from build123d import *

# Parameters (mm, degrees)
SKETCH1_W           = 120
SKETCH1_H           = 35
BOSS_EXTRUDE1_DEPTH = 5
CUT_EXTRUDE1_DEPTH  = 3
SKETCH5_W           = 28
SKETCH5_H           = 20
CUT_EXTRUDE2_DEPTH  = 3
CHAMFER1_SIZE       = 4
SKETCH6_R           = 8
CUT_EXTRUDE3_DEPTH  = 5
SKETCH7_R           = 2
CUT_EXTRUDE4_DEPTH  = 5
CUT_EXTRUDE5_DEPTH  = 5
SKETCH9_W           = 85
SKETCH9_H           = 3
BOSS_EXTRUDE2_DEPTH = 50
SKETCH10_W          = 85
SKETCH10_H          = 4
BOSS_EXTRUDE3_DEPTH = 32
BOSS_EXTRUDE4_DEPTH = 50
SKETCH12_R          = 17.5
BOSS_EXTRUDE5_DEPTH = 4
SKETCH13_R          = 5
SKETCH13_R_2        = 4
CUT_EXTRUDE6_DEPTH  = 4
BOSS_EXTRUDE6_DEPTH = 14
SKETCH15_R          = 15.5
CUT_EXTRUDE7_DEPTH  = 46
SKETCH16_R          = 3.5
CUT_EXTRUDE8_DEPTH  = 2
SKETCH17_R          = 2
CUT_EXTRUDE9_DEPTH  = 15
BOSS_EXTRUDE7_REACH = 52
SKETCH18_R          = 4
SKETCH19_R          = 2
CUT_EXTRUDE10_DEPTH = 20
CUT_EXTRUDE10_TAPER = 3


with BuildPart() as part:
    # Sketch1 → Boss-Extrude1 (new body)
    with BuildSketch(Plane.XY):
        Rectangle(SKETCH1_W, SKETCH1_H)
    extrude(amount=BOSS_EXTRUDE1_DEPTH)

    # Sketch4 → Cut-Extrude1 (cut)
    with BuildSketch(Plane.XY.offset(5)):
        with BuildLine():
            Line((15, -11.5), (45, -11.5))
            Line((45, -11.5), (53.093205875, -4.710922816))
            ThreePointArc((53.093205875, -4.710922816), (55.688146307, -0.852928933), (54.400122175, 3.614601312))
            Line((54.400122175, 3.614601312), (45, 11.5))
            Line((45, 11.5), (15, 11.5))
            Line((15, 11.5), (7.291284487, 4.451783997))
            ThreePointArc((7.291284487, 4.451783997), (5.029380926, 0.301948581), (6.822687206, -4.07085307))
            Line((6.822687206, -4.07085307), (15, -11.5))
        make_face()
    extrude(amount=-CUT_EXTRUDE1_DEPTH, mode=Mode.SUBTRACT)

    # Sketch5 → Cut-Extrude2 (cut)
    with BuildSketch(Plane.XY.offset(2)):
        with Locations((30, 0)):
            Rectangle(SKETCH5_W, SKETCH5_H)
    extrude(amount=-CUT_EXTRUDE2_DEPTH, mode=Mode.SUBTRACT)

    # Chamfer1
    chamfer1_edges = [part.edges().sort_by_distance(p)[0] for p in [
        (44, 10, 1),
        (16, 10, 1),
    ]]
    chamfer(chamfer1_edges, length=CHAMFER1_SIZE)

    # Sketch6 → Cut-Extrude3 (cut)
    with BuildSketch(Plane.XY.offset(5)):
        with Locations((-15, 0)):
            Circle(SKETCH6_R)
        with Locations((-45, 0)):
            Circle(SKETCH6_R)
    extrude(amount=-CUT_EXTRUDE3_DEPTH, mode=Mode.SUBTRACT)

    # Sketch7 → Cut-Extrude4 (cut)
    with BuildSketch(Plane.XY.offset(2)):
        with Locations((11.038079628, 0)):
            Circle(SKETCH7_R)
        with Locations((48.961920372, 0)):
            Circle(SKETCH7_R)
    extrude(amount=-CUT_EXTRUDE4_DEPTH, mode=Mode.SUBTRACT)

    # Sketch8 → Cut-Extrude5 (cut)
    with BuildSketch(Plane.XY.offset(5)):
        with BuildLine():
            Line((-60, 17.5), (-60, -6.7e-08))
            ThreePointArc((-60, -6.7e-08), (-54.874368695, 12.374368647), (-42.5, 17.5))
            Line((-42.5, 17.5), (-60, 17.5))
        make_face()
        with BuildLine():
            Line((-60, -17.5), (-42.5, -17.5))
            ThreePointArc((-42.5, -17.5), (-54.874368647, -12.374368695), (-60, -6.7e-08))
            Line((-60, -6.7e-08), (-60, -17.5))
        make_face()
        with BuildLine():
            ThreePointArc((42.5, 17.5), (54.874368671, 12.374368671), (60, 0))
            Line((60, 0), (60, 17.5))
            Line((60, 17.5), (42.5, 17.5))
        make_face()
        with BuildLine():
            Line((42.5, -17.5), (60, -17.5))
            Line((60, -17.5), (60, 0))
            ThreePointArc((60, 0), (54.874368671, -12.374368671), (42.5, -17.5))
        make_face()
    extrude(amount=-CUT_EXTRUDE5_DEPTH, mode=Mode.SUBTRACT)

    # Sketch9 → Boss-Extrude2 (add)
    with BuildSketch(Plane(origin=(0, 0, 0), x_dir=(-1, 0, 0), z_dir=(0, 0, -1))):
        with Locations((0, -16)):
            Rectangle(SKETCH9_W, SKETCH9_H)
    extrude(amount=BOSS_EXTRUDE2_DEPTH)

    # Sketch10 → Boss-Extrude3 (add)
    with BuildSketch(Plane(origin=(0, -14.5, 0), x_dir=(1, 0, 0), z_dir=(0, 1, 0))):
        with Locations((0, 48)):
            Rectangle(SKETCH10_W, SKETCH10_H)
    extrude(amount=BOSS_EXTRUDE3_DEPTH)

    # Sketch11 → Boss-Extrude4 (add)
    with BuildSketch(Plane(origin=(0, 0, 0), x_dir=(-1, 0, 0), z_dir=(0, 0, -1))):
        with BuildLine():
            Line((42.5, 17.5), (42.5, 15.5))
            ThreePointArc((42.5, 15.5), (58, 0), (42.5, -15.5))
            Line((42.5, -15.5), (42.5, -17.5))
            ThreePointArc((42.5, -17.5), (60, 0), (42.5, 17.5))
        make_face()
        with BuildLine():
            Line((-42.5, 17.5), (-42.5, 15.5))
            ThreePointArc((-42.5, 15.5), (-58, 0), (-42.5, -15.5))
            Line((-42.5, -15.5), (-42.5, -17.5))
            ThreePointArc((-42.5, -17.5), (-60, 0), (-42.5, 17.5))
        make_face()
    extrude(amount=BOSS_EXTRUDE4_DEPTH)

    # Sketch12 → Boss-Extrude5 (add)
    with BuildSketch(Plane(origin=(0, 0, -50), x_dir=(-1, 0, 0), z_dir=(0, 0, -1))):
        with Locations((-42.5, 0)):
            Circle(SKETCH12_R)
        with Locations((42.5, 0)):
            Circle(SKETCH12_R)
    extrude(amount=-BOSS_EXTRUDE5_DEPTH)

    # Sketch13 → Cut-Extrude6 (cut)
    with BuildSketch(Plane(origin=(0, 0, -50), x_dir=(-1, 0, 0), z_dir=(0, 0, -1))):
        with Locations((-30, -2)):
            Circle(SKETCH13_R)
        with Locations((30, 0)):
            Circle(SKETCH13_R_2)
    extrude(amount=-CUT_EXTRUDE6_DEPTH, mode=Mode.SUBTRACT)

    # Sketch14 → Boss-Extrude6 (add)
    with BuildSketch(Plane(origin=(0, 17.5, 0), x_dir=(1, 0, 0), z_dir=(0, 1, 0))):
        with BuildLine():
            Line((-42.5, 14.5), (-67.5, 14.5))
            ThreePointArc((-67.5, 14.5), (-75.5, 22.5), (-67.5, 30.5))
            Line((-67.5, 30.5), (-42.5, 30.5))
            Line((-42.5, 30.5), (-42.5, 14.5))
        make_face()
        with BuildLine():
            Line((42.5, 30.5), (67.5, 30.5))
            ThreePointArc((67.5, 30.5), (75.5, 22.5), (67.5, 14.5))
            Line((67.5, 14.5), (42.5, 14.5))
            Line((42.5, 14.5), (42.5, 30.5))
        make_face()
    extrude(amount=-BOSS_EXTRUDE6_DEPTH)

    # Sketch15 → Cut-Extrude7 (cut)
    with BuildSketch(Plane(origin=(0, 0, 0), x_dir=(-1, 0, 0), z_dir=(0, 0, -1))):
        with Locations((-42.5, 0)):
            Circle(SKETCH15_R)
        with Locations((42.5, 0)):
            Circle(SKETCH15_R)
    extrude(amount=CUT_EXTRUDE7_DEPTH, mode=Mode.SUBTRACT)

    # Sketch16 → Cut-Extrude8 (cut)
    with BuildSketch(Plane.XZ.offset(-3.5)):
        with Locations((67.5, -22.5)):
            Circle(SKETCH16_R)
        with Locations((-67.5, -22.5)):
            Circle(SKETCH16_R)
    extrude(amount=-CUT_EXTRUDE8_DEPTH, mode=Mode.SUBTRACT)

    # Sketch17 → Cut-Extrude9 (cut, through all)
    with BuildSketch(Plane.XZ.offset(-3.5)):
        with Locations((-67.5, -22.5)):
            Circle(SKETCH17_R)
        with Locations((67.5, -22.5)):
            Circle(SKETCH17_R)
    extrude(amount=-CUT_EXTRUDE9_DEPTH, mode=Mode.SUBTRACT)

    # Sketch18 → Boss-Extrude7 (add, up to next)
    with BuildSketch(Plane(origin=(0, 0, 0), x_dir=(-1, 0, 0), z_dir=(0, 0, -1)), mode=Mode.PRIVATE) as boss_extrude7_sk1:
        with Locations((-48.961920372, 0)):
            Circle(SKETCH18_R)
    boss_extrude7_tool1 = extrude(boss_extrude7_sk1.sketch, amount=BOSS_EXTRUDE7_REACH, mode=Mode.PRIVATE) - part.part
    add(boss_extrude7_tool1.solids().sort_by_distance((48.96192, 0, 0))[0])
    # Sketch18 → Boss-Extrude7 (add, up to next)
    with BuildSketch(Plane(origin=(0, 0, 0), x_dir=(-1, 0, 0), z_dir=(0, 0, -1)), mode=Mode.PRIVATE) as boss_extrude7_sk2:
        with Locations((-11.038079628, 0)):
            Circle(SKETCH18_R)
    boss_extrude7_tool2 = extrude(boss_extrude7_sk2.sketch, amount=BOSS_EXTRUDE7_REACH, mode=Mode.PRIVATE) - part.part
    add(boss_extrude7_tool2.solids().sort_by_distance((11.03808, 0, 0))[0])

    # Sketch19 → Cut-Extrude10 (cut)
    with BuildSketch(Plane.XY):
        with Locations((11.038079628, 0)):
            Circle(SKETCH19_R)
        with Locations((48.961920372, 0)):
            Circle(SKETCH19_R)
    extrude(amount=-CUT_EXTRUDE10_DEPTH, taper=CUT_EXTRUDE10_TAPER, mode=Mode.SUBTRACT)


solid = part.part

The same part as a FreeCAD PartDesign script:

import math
import FreeCAD as App
import Part
import Sketcher

V = App.Vector
Q = App.Units.Quantity


def edges_at(feature, points):
    """Names of the edges that pass closest to the given points."""
    edges = feature.Shape.Edges
    near = lambda p: min(range(len(edges)), key=lambda i: edges[i].distToShape(Part.Vertex(*p))[0])
    return sorted({f"Edge{near(p) + 1}" for p in points})

doc = App.newDocument("Part")
body = doc.addObject("PartDesign::Body", "Body")

sketch1 = doc.addObject("Sketcher::SketchObject", "Sketch")
body.addObject(sketch1)
sketch1.AttachmentSupport = (doc.XY_Plane, [""])
sketch1.MapMode = "FlatFace"
sketch1.addGeometry(Part.LineSegment(V(-60, 18, 0), V(-60, -18, 0)), False)
sketch1.addGeometry(Part.LineSegment(V(-60, -18, 0), V(60, -18, 0)), False)
sketch1.addGeometry(Part.LineSegment(V(60, -18, 0), V(60, 18, 0)), False)
sketch1.addGeometry(Part.LineSegment(V(60, 18, 0), V(-60, 18, 0)), False)
sketch1.addConstraint(Sketcher.Constraint("Coincident", 0, 2, 1, 1))
sketch1.addConstraint(Sketcher.Constraint("Coincident", 1, 2, 2, 1))
sketch1.addConstraint(Sketcher.Constraint("Coincident", 2, 2, 3, 1))
sketch1.addConstraint(Sketcher.Constraint("Coincident", 3, 2, 0, 1))
sketch1.addConstraint(Sketcher.Constraint("Vertical", 0))
sketch1.addConstraint(Sketcher.Constraint("Horizontal", 1))
sketch1.addConstraint(Sketcher.Constraint("Vertical", 2))
sketch1.addConstraint(Sketcher.Constraint("Horizontal", 3))
sketch1.addConstraint(Sketcher.Constraint("Symmetric", 0, 2, 2, 2, -1, 1))
sketch1.addConstraint(Sketcher.Constraint("DistanceX", 1, 1, 1, 2, Q("120 mm")))
sketch1.addConstraint(Sketcher.Constraint("DistanceY", 0, 2, 0, 1, Q("35 mm")))
pad1 = doc.addObject("PartDesign::Pad", "Pad")
body.addObject(pad1)
pad1.Profile = sketch1
pad1.Length = 5

sketch2 = doc.addObject("Sketcher::SketchObject", "Sketch001")
body.addObject(sketch2)
sketch2.AttachmentSupport = (doc.XY_Plane, [""])
sketch2.MapMode = "FlatFace"
sketch2.AttachmentOffset = App.Placement(V(0, 0, 5), App.Rotation())
sketch2.addGeometry(Part.LineSegment(V(15, -12, 0), V(45, -12, 0)), False)
sketch2.addGeometry(Part.LineSegment(V(45, -12, 0), V(53, -5, 0)), False)
sketch2.addGeometry(Part.ArcOfCircle(Part.Circle(V(50, 0, 0), V(0, 0, 1), 6), math.radians(-59), math.radians(41)), False)
sketch2.addGeometry(Part.LineSegment(V(54, 4, 0), V(45, 12, 0)), False)
sketch2.addGeometry(Part.LineSegment(V(45, 12, 0), V(15, 12, 0)), False)
sketch2.addGeometry(Part.LineSegment(V(15, 12, 0), V(7, 4, 0)), False)
sketch2.addGeometry(Part.ArcOfCircle(Part.Circle(V(11, 0, 0), V(0, 0, 1), 6), math.radians(126), math.radians(228)), False)
sketch2.addGeometry(Part.LineSegment(V(7, -4, 0), V(15, -12, 0)), False)
sketch2.addConstraint(Sketcher.Constraint("Coincident", 0, 2, 1, 1))
sketch2.addConstraint(Sketcher.Constraint("Coincident", 1, 2, 2, 1))
sketch2.addConstraint(Sketcher.Constraint("Coincident", 2, 2, 3, 1))
sketch2.addConstraint(Sketcher.Constraint("Coincident", 3, 2, 4, 1))
sketch2.addConstraint(Sketcher.Constraint("Coincident", 4, 2, 5, 1))
sketch2.addConstraint(Sketcher.Constraint("Coincident", 5, 2, 6, 1))
sketch2.addConstraint(Sketcher.Constraint("Tangent", 6, 2, 7, 1))
sketch2.addConstraint(Sketcher.Constraint("Coincident", 7, 2, 0, 1))
sketch2.addConstraint(Sketcher.Constraint("Horizontal", 0))
sketch2.addConstraint(Sketcher.Constraint("Horizontal", 4))
sketch2.addConstraint(Sketcher.Constraint("Equal", 2, 6))
sketch2.addConstraint(Sketcher.Constraint("Symmetric", 0, 2, 3, 2, -1))
sketch2.addConstraint(Sketcher.Constraint("PointOnObject", 2, 3, -1))
sketch2.addConstraint(Sketcher.Constraint("PointOnObject", 6, 3, -1))
sketch2.addConstraint(Sketcher.Constraint("Vertical", 4, 2, 7, 2))
sketch2.addConstraint(Sketcher.Constraint("Radius", 2, Q("5.5 mm")))
sketch2.addConstraint(Sketcher.Constraint("DistanceX", 0, 1, 0, 2, Q("30 mm")))
sketch2.addConstraint(Sketcher.Constraint("DistanceX", -1, 1, 0, 2, Q("45 mm")))
sketch2.addConstraint(Sketcher.Constraint("DistanceY", 0, 2, 3, 2, Q("23 mm")))
sketch2.addConstraint(Sketcher.Constraint("DistanceY", -1, 1, 2, 2, Q("3.614601 mm")))
sketch2.addConstraint(Sketcher.Constraint("DistanceX", 5, 2, 6, 3, Q("3.229802 mm")))
sketch2.addConstraint(Sketcher.Constraint("DistanceX", 5, 2, 2, 3, Q("42.9634 mm")))
sketch2.addConstraint(Sketcher.Constraint("DistanceX", 6, 2, 6, 3, Q("3.698399 mm")))
sketch2.addConstraint(Sketcher.Constraint("Distance", 1, Q("10.56369 mm")))
pocket1 = doc.addObject("PartDesign::Pocket", "Pocket")
body.addObject(pocket1)
pocket1.Profile = sketch2
pocket1.Length = 3

sketch3 = doc.addObject("Sketcher::SketchObject", "Sketch002")
body.addObject(sketch3)
sketch3.AttachmentSupport = (doc.XY_Plane, [""])
sketch3.MapMode = "FlatFace"
sketch3.AttachmentOffset = App.Placement(V(0, 0, 2), App.Rotation())
sketch3.addGeometry(Part.LineSegment(V(16, 10, 0), V(16, -10, 0)), False)
sketch3.addGeometry(Part.LineSegment(V(16, -10, 0), V(44, -10, 0)), False)
sketch3.addGeometry(Part.LineSegment(V(44, -10, 0), V(44, 10, 0)), False)
sketch3.addGeometry(Part.LineSegment(V(44, 10, 0), V(16, 10, 0)), False)
sketch3.addConstraint(Sketcher.Constraint("Coincident", 0, 2, 1, 1))
sketch3.addConstraint(Sketcher.Constraint("Coincident", 1, 2, 2, 1))
sketch3.addConstraint(Sketcher.Constraint("Coincident", 2, 2, 3, 1))
sketch3.addConstraint(Sketcher.Constraint("Coincident", 3, 2, 0, 1))
sketch3.addConstraint(Sketcher.Constraint("Vertical", 0))
sketch3.addConstraint(Sketcher.Constraint("Horizontal", 1))
sketch3.addConstraint(Sketcher.Constraint("Vertical", 2))
sketch3.addConstraint(Sketcher.Constraint("Horizontal", 3))
sketch3.addConstraint(Sketcher.Constraint("DistanceX", 1, 1, 1, 2, Q("28 mm")))
sketch3.addConstraint(Sketcher.Constraint("DistanceY", 0, 2, 0, 1, Q("20 mm")))
sketch3.addConstraint(Sketcher.Constraint("DistanceX", -1, 1, 0, 2, Q("16 mm")))
sketch3.addConstraint(Sketcher.Constraint("DistanceY", 0, 2, -1, 1, Q("10 mm")))
pocket2 = doc.addObject("PartDesign::Pocket", "Pocket001")
body.addObject(pocket2)
pocket2.Profile = sketch3
pocket2.Length = 3
doc.recompute()

chamfer = doc.addObject("PartDesign::Chamfer", "Chamfer")
body.addObject(chamfer)
chamfer.Base = (pocket2, edges_at(pocket2, [(44, 10, 1), (16, 10, 1)]))
chamfer.Size = 4

sketch4 = doc.addObject("Sketcher::SketchObject", "Sketch003")
body.addObject(sketch4)
sketch4.AttachmentSupport = (doc.XY_Plane, [""])
sketch4.MapMode = "FlatFace"
sketch4.AttachmentOffset = App.Placement(V(0, 0, 5), App.Rotation())
sketch4.addGeometry(Part.Circle(V(-15, 0, 0), V(0, 0, 1), 8), False)
sketch4.addGeometry(Part.Circle(V(-45, 0, 0), V(0, 0, 1), 8), False)
sketch4.addConstraint(Sketcher.Constraint("Equal", 0, 1))
sketch4.addConstraint(Sketcher.Constraint("PointOnObject", 0, 3, -1))
sketch4.addConstraint(Sketcher.Constraint("PointOnObject", 1, 3, -1))
sketch4.addConstraint(Sketcher.Constraint("Diameter", 0, Q("16 mm")))
sketch4.addConstraint(Sketcher.Constraint("DistanceX", 0, 3, -1, 1, Q("15 mm")))
sketch4.addConstraint(Sketcher.Constraint("DistanceX", 1, 3, -1, 1, Q("45 mm")))
pocket3 = doc.addObject("PartDesign::Pocket", "Pocket002")
body.addObject(pocket3)
pocket3.Profile = sketch4
pocket3.Length = 5

sketch5 = doc.addObject("Sketcher::SketchObject", "Sketch004")
body.addObject(sketch5)
sketch5.AttachmentSupport = (doc.XY_Plane, [""])
sketch5.MapMode = "FlatFace"
sketch5.AttachmentOffset = App.Placement(V(0, 0, 2), App.Rotation())
sketch5.addGeometry(Part.Circle(V(11, 0, 0), V(0, 0, 1), 2), False)
sketch5.addGeometry(Part.Circle(V(49, 0, 0), V(0, 0, 1), 2), False)
sketch5.addConstraint(Sketcher.Constraint("Equal", 0, 1))
sketch5.addConstraint(Sketcher.Constraint("PointOnObject", 0, 3, -1))
sketch5.addConstraint(Sketcher.Constraint("PointOnObject", 1, 3, -1))
sketch5.addConstraint(Sketcher.Constraint("Diameter", 0, Q("4 mm")))
sketch5.addConstraint(Sketcher.Constraint("DistanceX", -1, 1, 0, 3, Q("11.03808 mm")))
sketch5.addConstraint(Sketcher.Constraint("DistanceX", -1, 1, 1, 3, Q("48.96192 mm")))
pocket4 = doc.addObject("PartDesign::Pocket", "Pocket003")
body.addObject(pocket4)
pocket4.Profile = sketch5
pocket4.Length = 5

sketch6 = doc.addObject("Sketcher::SketchObject", "Sketch005")
body.addObject(sketch6)
sketch6.AttachmentSupport = (doc.XY_Plane, [""])
sketch6.MapMode = "FlatFace"
sketch6.AttachmentOffset = App.Placement(V(0, 0, 5), App.Rotation())
sketch6.addGeometry(Part.LineSegment(V(-60, 18, 0), V(-60, 0, 0)), False)
sketch6.addGeometry(Part.ArcOfCircle(Part.Circle(V(-43, 0, 0), V(0, 0, 1), 17), math.radians(90), math.radians(180)), False)
sketch6.addGeometry(Part.LineSegment(V(-42, 18, 0), V(-60, 18, 0)), False)
sketch6.addGeometry(Part.LineSegment(V(-60, -18, 0), V(-42, -18, 0)), False)
sketch6.addGeometry(Part.ArcOfCircle(Part.Circle(V(-43, 0, 0), V(0, 0, 1), 17), math.radians(-180), math.radians(-90)), False)
sketch6.addGeometry(Part.LineSegment(V(-60, 0, 0), V(-60, -18, 0)), False)
sketch6.addGeometry(Part.ArcOfCircle(Part.Circle(V(43, 0, 0), V(0, 0, 1), 17), math.radians(0), math.radians(90)), False)
sketch6.addGeometry(Part.LineSegment(V(60, 0, 0), V(60, 18, 0)), False)
sketch6.addGeometry(Part.LineSegment(V(60, 18, 0), V(42, 18, 0)), False)
sketch6.addGeometry(Part.LineSegment(V(42, -18, 0), V(60, -18, 0)), False)
sketch6.addGeometry(Part.LineSegment(V(60, -18, 0), V(60, 0, 0)), False)
sketch6.addGeometry(Part.ArcOfCircle(Part.Circle(V(43, 0, 0), V(0, 0, 1), 17), math.radians(-90), math.radians(0)), False)
sketch6.addConstraint(Sketcher.Constraint("Tangent", 0, 2, 1, 2))
sketch6.addConstraint(Sketcher.Constraint("Tangent", 1, 1, 2, 1))
sketch6.addConstraint(Sketcher.Constraint("Coincident", 2, 2, 0, 1))
sketch6.addConstraint(Sketcher.Constraint("Tangent", 3, 2, 4, 2))
sketch6.addConstraint(Sketcher.Constraint("Tangent", 4, 1, 5, 1))
sketch6.addConstraint(Sketcher.Constraint("Coincident", 5, 2, 3, 1))
sketch6.addConstraint(Sketcher.Constraint("Tangent", 6, 1, 7, 1))
sketch6.addConstraint(Sketcher.Constraint("Coincident", 7, 2, 8, 1))
sketch6.addConstraint(Sketcher.Constraint("Tangent", 8, 2, 6, 2))
sketch6.addConstraint(Sketcher.Constraint("Coincident", 9, 2, 10, 1))
sketch6.addConstraint(Sketcher.Constraint("Tangent", 10, 2, 11, 2))
sketch6.addConstraint(Sketcher.Constraint("Tangent", 11, 1, 9, 1))
sketch6.addConstraint(Sketcher.Constraint("Vertical", 0))
sketch6.addConstraint(Sketcher.Constraint("Horizontal", 2))
sketch6.addConstraint(Sketcher.Constraint("Horizontal", 3))
sketch6.addConstraint(Sketcher.Constraint("Vertical", 5))
sketch6.addConstraint(Sketcher.Constraint("Vertical", 7))
sketch6.addConstraint(Sketcher.Constraint("Horizontal", 8))
sketch6.addConstraint(Sketcher.Constraint("Horizontal", 9))
sketch6.addConstraint(Sketcher.Constraint("Vertical", 10))
sketch6.addConstraint(Sketcher.Constraint("Coincident", 4, 3, 1, 3))
sketch6.addConstraint(Sketcher.Constraint("Coincident", 11, 3, 6, 3))
sketch6.addConstraint(Sketcher.Constraint("Equal", 1, 4))
sketch6.addConstraint(Sketcher.Constraint("Equal", 4, 6))
sketch6.addConstraint(Sketcher.Constraint("Equal", 6, 11))
sketch6.addConstraint(Sketcher.Constraint("Symmetric", 1, 3, 6, 3, -1, 1))
sketch6.addConstraint(Sketcher.Constraint("PointOnObject", 1, 3, -1))
sketch6.addConstraint(Sketcher.Constraint("Radius", 1, Q("17.5 mm")))
sketch6.addConstraint(Sketcher.Constraint("DistanceX", 0, 2, -1, 1, Q("60 mm")))
pocket5 = doc.addObject("PartDesign::Pocket", "Pocket004")
body.addObject(pocket5)
pocket5.Profile = sketch6
pocket5.Length = 5

sketch7 = doc.addObject("Sketcher::SketchObject", "Sketch006")
body.addObject(sketch7)
sketch7.AttachmentSupport = (doc.XY_Plane, [""])
sketch7.MapMode = "FlatFace"
sketch7.addGeometry(Part.LineSegment(V(42.5, -14.5, 0), V(42.5, -17.5, 0)), False)
sketch7.addGeometry(Part.LineSegment(V(42.5, -17.5, 0), V(-42.5, -17.5, 0)), False)
sketch7.addGeometry(Part.LineSegment(V(-42.5, -17.5, 0), V(-42.5, -14.5, 0)), False)
sketch7.addGeometry(Part.LineSegment(V(-42.5, -14.5, 0), V(42.5, -14.5, 0)), False)
sketch7.addConstraint(Sketcher.Constraint("Coincident", 0, 2, 1, 1))
sketch7.addConstraint(Sketcher.Constraint("Coincident", 1, 2, 2, 1))
sketch7.addConstraint(Sketcher.Constraint("Coincident", 2, 2, 3, 1))
sketch7.addConstraint(Sketcher.Constraint("Coincident", 3, 2, 0, 1))
sketch7.addConstraint(Sketcher.Constraint("Vertical", 0))
sketch7.addConstraint(Sketcher.Constraint("Horizontal", 1))
sketch7.addConstraint(Sketcher.Constraint("Vertical", 2))
sketch7.addConstraint(Sketcher.Constraint("Horizontal", 3))
sketch7.addConstraint(Sketcher.Constraint("DistanceX", 1, 2, 1, 1, Q("85 mm")))
sketch7.addConstraint(Sketcher.Constraint("DistanceY", 0, 2, 0, 1, Q("3 mm")))
sketch7.addConstraint(Sketcher.Constraint("DistanceX", -1, 1, 0, 2, Q("42.5 mm")))
sketch7.addConstraint(Sketcher.Constraint("DistanceY", 0, 2, -1, 1, Q("17.5 mm")))
pad2 = doc.addObject("PartDesign::Pad", "Pad001")
body.addObject(pad2)
pad2.Profile = sketch7
pad2.Length = 50
pad2.Reversed = True

sketch8 = doc.addObject("Sketcher::SketchObject", "Sketch007")
body.addObject(sketch8)
sketch8.AttachmentSupport = (doc.XZ_Plane, [""])
sketch8.MapMode = "FlatFace"
sketch8.AttachmentOffset = App.Placement(V(0, 0, 14.5), App.Rotation())
sketch8.addGeometry(Part.LineSegment(V(-42.5, -50, 0), V(-42.5, -46, 0)), False)
sketch8.addGeometry(Part.LineSegment(V(-42.5, -46, 0), V(42.5, -46, 0)), False)
sketch8.addGeometry(Part.LineSegment(V(42.5, -46, 0), V(42.5, -50, 0)), False)
sketch8.addGeometry(Part.LineSegment(V(42.5, -50, 0), V(-42.5, -50, 0)), False)
sketch8.addConstraint(Sketcher.Constraint("Coincident", 0, 2, 1, 1))
sketch8.addConstraint(Sketcher.Constraint("Coincident", 1, 2, 2, 1))
sketch8.addConstraint(Sketcher.Constraint("Coincident", 2, 2, 3, 1))
sketch8.addConstraint(Sketcher.Constraint("Coincident", 3, 2, 0, 1))
sketch8.addConstraint(Sketcher.Constraint("Vertical", 0))
sketch8.addConstraint(Sketcher.Constraint("Horizontal", 1))
sketch8.addConstraint(Sketcher.Constraint("Vertical", 2))
sketch8.addConstraint(Sketcher.Constraint("Horizontal", 3))
sketch8.addConstraint(Sketcher.Constraint("DistanceX", 1, 1, 1, 2, Q("85 mm")))
sketch8.addConstraint(Sketcher.Constraint("DistanceY", 0, 1, 0, 2, Q("4 mm")))
sketch8.addConstraint(Sketcher.Constraint("DistanceY", 0, 2, -1, 1, Q("46 mm")))
sketch8.addConstraint(Sketcher.Constraint("DistanceX", 0, 2, -1, 1, Q("42.5 mm")))
pad3 = doc.addObject("PartDesign::Pad", "Pad002")
body.addObject(pad3)
pad3.Profile = sketch8
pad3.Length = 32
pad3.Reversed = True

sketch9 = doc.addObject("Sketcher::SketchObject", "Sketch008")
body.addObject(sketch9)
sketch9.AttachmentSupport = (doc.XY_Plane, [""])
sketch9.MapMode = "FlatFace"
sketch9.addGeometry(Part.LineSegment(V(-42.5, 17.5, 0), V(-42.5, 15.5, 0)), False)
sketch9.addGeometry(Part.ArcOfCircle(Part.Circle(V(-42.5, 0, 0), V(0, 0, 1), 15.5), math.radians(90), math.radians(270)), False)
sketch9.addGeometry(Part.LineSegment(V(-42.5, -15.5, 0), V(-42.5, -17.5, 0)), False)
sketch9.addGeometry(Part.ArcOfCircle(Part.Circle(V(-42.5, 0, 0), V(0, 0, 1), 17.5), math.radians(90), math.radians(270)), False)
sketch9.addGeometry(Part.LineSegment(V(42.5, 15.5, 0), V(42.5, 17.5, 0)), False)
sketch9.addGeometry(Part.ArcOfCircle(Part.Circle(V(42.5, 0, 0), V(0, 0, 1), 17.5), math.radians(-90), math.radians(90)), False)
sketch9.addGeometry(Part.LineSegment(V(42.5, -17.5, 0), V(42.5, -15.5, 0)), False)
sketch9.addGeometry(Part.ArcOfCircle(Part.Circle(V(42.5, 0, 0), V(0, 0, 1), 15.5), math.radians(-90), math.radians(90)), False)
sketch9.addConstraint(Sketcher.Constraint("Coincident", 0, 2, 1, 1))
sketch9.addConstraint(Sketcher.Constraint("Coincident", 1, 2, 2, 1))
sketch9.addConstraint(Sketcher.Constraint("Coincident", 2, 2, 3, 2))
sketch9.addConstraint(Sketcher.Constraint("Coincident", 3, 1, 0, 1))
sketch9.addConstraint(Sketcher.Constraint("Coincident", 4, 2, 5, 2))
sketch9.addConstraint(Sketcher.Constraint("Coincident", 5, 1, 6, 1))
sketch9.addConstraint(Sketcher.Constraint("Coincident", 6, 2, 7, 1))
sketch9.addConstraint(Sketcher.Constraint("Coincident", 7, 2, 4, 1))
sketch9.addConstraint(Sketcher.Constraint("Vertical", 0))
sketch9.addConstraint(Sketcher.Constraint("Vertical", 2))
sketch9.addConstraint(Sketcher.Constraint("Vertical", 4))
sketch9.addConstraint(Sketcher.Constraint("Vertical", 6))
sketch9.addConstraint(Sketcher.Constraint("Coincident", 3, 3, 1, 3))
sketch9.addConstraint(Sketcher.Constraint("Coincident", 7, 3, 5, 3))
sketch9.addConstraint(Sketcher.Constraint("Equal", 3, 5))
sketch9.addConstraint(Sketcher.Constraint("Equal", 1, 7))
sketch9.addConstraint(Sketcher.Constraint("Symmetric", 1, 3, 5, 3, -1, 1))
sketch9.addConstraint(Sketcher.Constraint("Symmetric", 3, 1, 4, 2, -2))
sketch9.addConstraint(Sketcher.Constraint("Vertical", 3, 3, 0, 2))
sketch9.addConstraint(Sketcher.Constraint("Vertical", 0, 2, 1, 2))
sketch9.addConstraint(Sketcher.Constraint("Vertical", 4, 2, 5, 1))
sketch9.addConstraint(Sketcher.Constraint("Radius", 1, Q("15.5 mm")))
sketch9.addConstraint(Sketcher.Constraint("Radius", 3, Q("17.5 mm")))
sketch9.addConstraint(Sketcher.Constraint("DistanceX", 1, 3, 5, 3, Q("85 mm")))
pad4 = doc.addObject("PartDesign::Pad", "Pad003")
body.addObject(pad4)
pad4.Profile = sketch9
pad4.Length = 50
pad4.Reversed = True

sketch10 = doc.addObject("Sketcher::SketchObject", "Sketch009")
body.addObject(sketch10)
sketch10.AttachmentSupport = (doc.XY_Plane, [""])
sketch10.MapMode = "FlatFace"
sketch10.AttachmentOffset = App.Placement(V(0, 0, -50), App.Rotation())
sketch10.addGeometry(Part.Circle(V(42, 0, 0), V(0, 0, 1), 18), False)
sketch10.addGeometry(Part.Circle(V(-42, 0, 0), V(0, 0, 1), 18), False)
sketch10.addConstraint(Sketcher.Constraint("Equal", 0, 1))
sketch10.addConstraint(Sketcher.Constraint("Symmetric", 0, 3, 1, 3, -1, 1))
sketch10.addConstraint(Sketcher.Constraint("PointOnObject", 0, 3, -1))
sketch10.addConstraint(Sketcher.Constraint("Diameter", 0, Q("35 mm")))
sketch10.addConstraint(Sketcher.Constraint("DistanceX", 1, 3, 0, 3, Q("85 mm")))
pad5 = doc.addObject("PartDesign::Pad", "Pad004")
body.addObject(pad5)
pad5.Profile = sketch10
pad5.Length = 4

sketch11 = doc.addObject("Sketcher::SketchObject", "Sketch010")
body.addObject(sketch11)
sketch11.AttachmentSupport = (doc.XY_Plane, [""])
sketch11.MapMode = "FlatFace"
sketch11.AttachmentOffset = App.Placement(V(0, 0, -50), App.Rotation())
sketch11.addGeometry(Part.Circle(V(30, -2, 0), V(0, 0, 1), 5), False)
sketch11.addGeometry(Part.Circle(V(-30, 0, 0), V(0, 0, 1), 4), False)
sketch11.addConstraint(Sketcher.Constraint("PointOnObject", 1, 3, -1))
sketch11.addConstraint(Sketcher.Constraint("Diameter", 0, Q("10 mm")))
sketch11.addConstraint(Sketcher.Constraint("Diameter", 1, Q("8 mm")))
sketch11.addConstraint(Sketcher.Constraint("DistanceX", -1, 1, 0, 3, Q("30 mm")))
sketch11.addConstraint(Sketcher.Constraint("DistanceY", 0, 3, -1, 1, Q("2 mm")))
sketch11.addConstraint(Sketcher.Constraint("DistanceX", 1, 3, -1, 1, Q("30 mm")))
pocket6 = doc.addObject("PartDesign::Pocket", "Pocket005")
body.addObject(pocket6)
pocket6.Profile = sketch11
pocket6.Length = 4
pocket6.Reversed = True

sketch12 = doc.addObject("Sketcher::SketchObject", "Sketch011")
body.addObject(sketch12)
sketch12.AttachmentSupport = (doc.XZ_Plane, [""])
sketch12.MapMode = "FlatFace"
sketch12.AttachmentOffset = App.Placement(V(0, 0, -17.5), App.Rotation())
sketch12.addGeometry(Part.LineSegment(V(-68, -14, 0), V(-42, -14, 0)), False)
sketch12.addGeometry(Part.LineSegment(V(-42, -14, 0), V(-42, -30, 0)), False)
sketch12.addGeometry(Part.LineSegment(V(-42, -30, 0), V(-68, -30, 0)), False)
sketch12.addGeometry(Part.ArcOfCircle(Part.Circle(V(-68, -22, 0), V(0, 0, 1), 8), math.radians(90), math.radians(270)), False)
sketch12.addGeometry(Part.LineSegment(V(68, -30, 0), V(42, -30, 0)), False)
sketch12.addGeometry(Part.LineSegment(V(42, -30, 0), V(42, -14, 0)), False)
sketch12.addGeometry(Part.LineSegment(V(42, -14, 0), V(68, -14, 0)), False)
sketch12.addGeometry(Part.ArcOfCircle(Part.Circle(V(68, -22, 0), V(0, 0, 1), 8), math.radians(-90), math.radians(90)), False)
sketch12.addConstraint(Sketcher.Constraint("Coincident", 0, 2, 1, 1))
sketch12.addConstraint(Sketcher.Constraint("Coincident", 1, 2, 2, 1))
sketch12.addConstraint(Sketcher.Constraint("Tangent", 2, 2, 3, 2))
sketch12.addConstraint(Sketcher.Constraint("Tangent", 3, 1, 0, 1))
sketch12.addConstraint(Sketcher.Constraint("Coincident", 4, 2, 5, 1))
sketch12.addConstraint(Sketcher.Constraint("Coincident", 5, 2, 6, 1))
sketch12.addConstraint(Sketcher.Constraint("Tangent", 6, 2, 7, 2))
sketch12.addConstraint(Sketcher.Constraint("Tangent", 7, 1, 4, 1))
sketch12.addConstraint(Sketcher.Constraint("Horizontal", 0))
sketch12.addConstraint(Sketcher.Constraint("Vertical", 1))
sketch12.addConstraint(Sketcher.Constraint("Horizontal", 2))
sketch12.addConstraint(Sketcher.Constraint("Horizontal", 4))
sketch12.addConstraint(Sketcher.Constraint("Vertical", 5))
sketch12.addConstraint(Sketcher.Constraint("Horizontal", 6))
sketch12.addConstraint(Sketcher.Constraint("Equal", 3, 7))
sketch12.addConstraint(Sketcher.Constraint("Symmetric", 3, 3, 7, 3, -2))
sketch12.addConstraint(Sketcher.Constraint("Equal", 2, 4))
sketch12.addConstraint(Sketcher.Constraint("Radius", 3, Q("8 mm")))
sketch12.addConstraint(Sketcher.Constraint("DistanceX", 0, 1, 0, 2, Q("25 mm")))
sketch12.addConstraint(Sketcher.Constraint("DistanceX", 3, 3, 7, 3, Q("135 mm")))
sketch12.addConstraint(Sketcher.Constraint("DistanceY", 3, 3, -1, 1, Q("22.5 mm")))
pad6 = doc.addObject("PartDesign::Pad", "Pad005")
body.addObject(pad6)
pad6.Profile = sketch12
pad6.Length = 14

sketch13 = doc.addObject("Sketcher::SketchObject", "Sketch012")
body.addObject(sketch13)
sketch13.AttachmentSupport = (doc.XY_Plane, [""])
sketch13.MapMode = "FlatFace"
sketch13.addGeometry(Part.Circle(V(42, 0, 0), V(0, 0, 1), 16), False)
sketch13.addGeometry(Part.Circle(V(-42, 0, 0), V(0, 0, 1), 16), False)
sketch13.addConstraint(Sketcher.Constraint("Equal", 0, 1))
sketch13.addConstraint(Sketcher.Constraint("Symmetric", 0, 3, 1, 3, -1, 1))
sketch13.addConstraint(Sketcher.Constraint("PointOnObject", 0, 3, -1))
sketch13.addConstraint(Sketcher.Constraint("Diameter", 0, Q("31 mm")))
sketch13.addConstraint(Sketcher.Constraint("DistanceX", 1, 3, 0, 3, Q("85 mm")))
pocket7 = doc.addObject("PartDesign::Pocket", "Pocket006")
body.addObject(pocket7)
pocket7.Profile = sketch13
pocket7.Length = 46

sketch14 = doc.addObject("Sketcher::SketchObject", "Sketch013")
body.addObject(sketch14)
sketch14.AttachmentSupport = (doc.XZ_Plane, [""])
sketch14.MapMode = "FlatFace"
sketch14.AttachmentOffset = App.Placement(V(0, 0, -3.5), App.Rotation())
sketch14.addGeometry(Part.Circle(V(67.5, -22.5, 0), V(0, 0, 1), 3.5), False)
sketch14.addGeometry(Part.Circle(V(-67.5, -22.5, 0), V(0, 0, 1), 3.5), False)
sketch14.addConstraint(Sketcher.Constraint("Equal", 0, 1))
sketch14.addConstraint(Sketcher.Constraint("Symmetric", 0, 3, 1, 3, -2))
sketch14.addConstraint(Sketcher.Constraint("Diameter", 0, Q("7 mm")))
sketch14.addConstraint(Sketcher.Constraint("DistanceX", 1, 3, 0, 3, Q("135 mm")))
sketch14.addConstraint(Sketcher.Constraint("DistanceY", 0, 3, -1, 1, Q("22.5 mm")))
pocket8 = doc.addObject("PartDesign::Pocket", "Pocket007")
body.addObject(pocket8)
pocket8.Profile = sketch14
pocket8.Length = 2

sketch15 = doc.addObject("Sketcher::SketchObject", "Sketch014")
body.addObject(sketch15)
sketch15.AttachmentSupport = (doc.XZ_Plane, [""])
sketch15.MapMode = "FlatFace"
sketch15.AttachmentOffset = App.Placement(V(0, 0, -3.5), App.Rotation())
sketch15.addGeometry(Part.Circle(V(-67.5, -22.5, 0), V(0, 0, 1), 2), False)
sketch15.addGeometry(Part.Circle(V(67.5, -22.5, 0), V(0, 0, 1), 2), False)
sketch15.addConstraint(Sketcher.Constraint("Equal", 0, 1))
sketch15.addConstraint(Sketcher.Constraint("Symmetric", 0, 3, 1, 3, -2))
sketch15.addConstraint(Sketcher.Constraint("Diameter", 0, Q("4 mm")))
sketch15.addConstraint(Sketcher.Constraint("DistanceX", 0, 3, 1, 3, Q("135 mm")))
sketch15.addConstraint(Sketcher.Constraint("DistanceY", 0, 3, -1, 1, Q("22.5 mm")))
pocket9 = doc.addObject("PartDesign::Pocket", "Pocket008")
body.addObject(pocket9)
pocket9.Profile = sketch15
pocket9.Type = "ThroughAll"

sketch16 = doc.addObject("Sketcher::SketchObject", "Sketch015")
body.addObject(sketch16)
sketch16.AttachmentSupport = (doc.XY_Plane, [""])
sketch16.MapMode = "FlatFace"
sketch16.addGeometry(Part.Circle(V(49, 0, 0), V(0, 0, 1), 4), False)
sketch16.addConstraint(Sketcher.Constraint("PointOnObject", 0, 3, -1))
sketch16.addConstraint(Sketcher.Constraint("Diameter", 0, Q("8 mm")))
sketch16.addConstraint(Sketcher.Constraint("DistanceX", -1, 1, 0, 3, Q("48.96192 mm")))
pad7 = doc.addObject("PartDesign::Pad", "Pad006")
body.addObject(pad7)
pad7.Profile = sketch16
pad7.Type = "UpToFirst"
pad7.Reversed = True

sketch17 = doc.addObject("Sketcher::SketchObject", "Sketch016")
body.addObject(sketch17)
sketch17.AttachmentSupport = (doc.XY_Plane, [""])
sketch17.MapMode = "FlatFace"
sketch17.addGeometry(Part.Circle(V(11, 0, 0), V(0, 0, 1), 4), False)
sketch17.addConstraint(Sketcher.Constraint("PointOnObject", 0, 3, -1))
sketch17.addConstraint(Sketcher.Constraint("Diameter", 0, Q("8 mm")))
sketch17.addConstraint(Sketcher.Constraint("DistanceX", -1, 1, 0, 3, Q("11.03808 mm")))
pad8 = doc.addObject("PartDesign::Pad", "Pad007")
body.addObject(pad8)
pad8.Profile = sketch17
pad8.Type = "UpToFirst"
pad8.Reversed = True

sketch18 = doc.addObject("Sketcher::SketchObject", "Sketch017")
body.addObject(sketch18)
sketch18.AttachmentSupport = (doc.XY_Plane, [""])
sketch18.MapMode = "FlatFace"
sketch18.addGeometry(Part.Circle(V(11, 0, 0), V(0, 0, 1), 2), False)
sketch18.addGeometry(Part.Circle(V(49, 0, 0), V(0, 0, 1), 2), False)
sketch18.addConstraint(Sketcher.Constraint("Equal", 0, 1))
sketch18.addConstraint(Sketcher.Constraint("PointOnObject", 0, 3, -1))
sketch18.addConstraint(Sketcher.Constraint("PointOnObject", 1, 3, -1))
sketch18.addConstraint(Sketcher.Constraint("Diameter", 0, Q("4 mm")))
sketch18.addConstraint(Sketcher.Constraint("DistanceX", -1, 1, 0, 3, Q("11.03808 mm")))
sketch18.addConstraint(Sketcher.Constraint("DistanceX", -1, 1, 1, 3, Q("48.96192 mm")))
pocket10 = doc.addObject("PartDesign::Pocket", "Pocket009")
body.addObject(pocket10)
pocket10.Profile = sketch18
pocket10.Length = 20
pocket10.TaperAngle = -3

doc.recompute()
